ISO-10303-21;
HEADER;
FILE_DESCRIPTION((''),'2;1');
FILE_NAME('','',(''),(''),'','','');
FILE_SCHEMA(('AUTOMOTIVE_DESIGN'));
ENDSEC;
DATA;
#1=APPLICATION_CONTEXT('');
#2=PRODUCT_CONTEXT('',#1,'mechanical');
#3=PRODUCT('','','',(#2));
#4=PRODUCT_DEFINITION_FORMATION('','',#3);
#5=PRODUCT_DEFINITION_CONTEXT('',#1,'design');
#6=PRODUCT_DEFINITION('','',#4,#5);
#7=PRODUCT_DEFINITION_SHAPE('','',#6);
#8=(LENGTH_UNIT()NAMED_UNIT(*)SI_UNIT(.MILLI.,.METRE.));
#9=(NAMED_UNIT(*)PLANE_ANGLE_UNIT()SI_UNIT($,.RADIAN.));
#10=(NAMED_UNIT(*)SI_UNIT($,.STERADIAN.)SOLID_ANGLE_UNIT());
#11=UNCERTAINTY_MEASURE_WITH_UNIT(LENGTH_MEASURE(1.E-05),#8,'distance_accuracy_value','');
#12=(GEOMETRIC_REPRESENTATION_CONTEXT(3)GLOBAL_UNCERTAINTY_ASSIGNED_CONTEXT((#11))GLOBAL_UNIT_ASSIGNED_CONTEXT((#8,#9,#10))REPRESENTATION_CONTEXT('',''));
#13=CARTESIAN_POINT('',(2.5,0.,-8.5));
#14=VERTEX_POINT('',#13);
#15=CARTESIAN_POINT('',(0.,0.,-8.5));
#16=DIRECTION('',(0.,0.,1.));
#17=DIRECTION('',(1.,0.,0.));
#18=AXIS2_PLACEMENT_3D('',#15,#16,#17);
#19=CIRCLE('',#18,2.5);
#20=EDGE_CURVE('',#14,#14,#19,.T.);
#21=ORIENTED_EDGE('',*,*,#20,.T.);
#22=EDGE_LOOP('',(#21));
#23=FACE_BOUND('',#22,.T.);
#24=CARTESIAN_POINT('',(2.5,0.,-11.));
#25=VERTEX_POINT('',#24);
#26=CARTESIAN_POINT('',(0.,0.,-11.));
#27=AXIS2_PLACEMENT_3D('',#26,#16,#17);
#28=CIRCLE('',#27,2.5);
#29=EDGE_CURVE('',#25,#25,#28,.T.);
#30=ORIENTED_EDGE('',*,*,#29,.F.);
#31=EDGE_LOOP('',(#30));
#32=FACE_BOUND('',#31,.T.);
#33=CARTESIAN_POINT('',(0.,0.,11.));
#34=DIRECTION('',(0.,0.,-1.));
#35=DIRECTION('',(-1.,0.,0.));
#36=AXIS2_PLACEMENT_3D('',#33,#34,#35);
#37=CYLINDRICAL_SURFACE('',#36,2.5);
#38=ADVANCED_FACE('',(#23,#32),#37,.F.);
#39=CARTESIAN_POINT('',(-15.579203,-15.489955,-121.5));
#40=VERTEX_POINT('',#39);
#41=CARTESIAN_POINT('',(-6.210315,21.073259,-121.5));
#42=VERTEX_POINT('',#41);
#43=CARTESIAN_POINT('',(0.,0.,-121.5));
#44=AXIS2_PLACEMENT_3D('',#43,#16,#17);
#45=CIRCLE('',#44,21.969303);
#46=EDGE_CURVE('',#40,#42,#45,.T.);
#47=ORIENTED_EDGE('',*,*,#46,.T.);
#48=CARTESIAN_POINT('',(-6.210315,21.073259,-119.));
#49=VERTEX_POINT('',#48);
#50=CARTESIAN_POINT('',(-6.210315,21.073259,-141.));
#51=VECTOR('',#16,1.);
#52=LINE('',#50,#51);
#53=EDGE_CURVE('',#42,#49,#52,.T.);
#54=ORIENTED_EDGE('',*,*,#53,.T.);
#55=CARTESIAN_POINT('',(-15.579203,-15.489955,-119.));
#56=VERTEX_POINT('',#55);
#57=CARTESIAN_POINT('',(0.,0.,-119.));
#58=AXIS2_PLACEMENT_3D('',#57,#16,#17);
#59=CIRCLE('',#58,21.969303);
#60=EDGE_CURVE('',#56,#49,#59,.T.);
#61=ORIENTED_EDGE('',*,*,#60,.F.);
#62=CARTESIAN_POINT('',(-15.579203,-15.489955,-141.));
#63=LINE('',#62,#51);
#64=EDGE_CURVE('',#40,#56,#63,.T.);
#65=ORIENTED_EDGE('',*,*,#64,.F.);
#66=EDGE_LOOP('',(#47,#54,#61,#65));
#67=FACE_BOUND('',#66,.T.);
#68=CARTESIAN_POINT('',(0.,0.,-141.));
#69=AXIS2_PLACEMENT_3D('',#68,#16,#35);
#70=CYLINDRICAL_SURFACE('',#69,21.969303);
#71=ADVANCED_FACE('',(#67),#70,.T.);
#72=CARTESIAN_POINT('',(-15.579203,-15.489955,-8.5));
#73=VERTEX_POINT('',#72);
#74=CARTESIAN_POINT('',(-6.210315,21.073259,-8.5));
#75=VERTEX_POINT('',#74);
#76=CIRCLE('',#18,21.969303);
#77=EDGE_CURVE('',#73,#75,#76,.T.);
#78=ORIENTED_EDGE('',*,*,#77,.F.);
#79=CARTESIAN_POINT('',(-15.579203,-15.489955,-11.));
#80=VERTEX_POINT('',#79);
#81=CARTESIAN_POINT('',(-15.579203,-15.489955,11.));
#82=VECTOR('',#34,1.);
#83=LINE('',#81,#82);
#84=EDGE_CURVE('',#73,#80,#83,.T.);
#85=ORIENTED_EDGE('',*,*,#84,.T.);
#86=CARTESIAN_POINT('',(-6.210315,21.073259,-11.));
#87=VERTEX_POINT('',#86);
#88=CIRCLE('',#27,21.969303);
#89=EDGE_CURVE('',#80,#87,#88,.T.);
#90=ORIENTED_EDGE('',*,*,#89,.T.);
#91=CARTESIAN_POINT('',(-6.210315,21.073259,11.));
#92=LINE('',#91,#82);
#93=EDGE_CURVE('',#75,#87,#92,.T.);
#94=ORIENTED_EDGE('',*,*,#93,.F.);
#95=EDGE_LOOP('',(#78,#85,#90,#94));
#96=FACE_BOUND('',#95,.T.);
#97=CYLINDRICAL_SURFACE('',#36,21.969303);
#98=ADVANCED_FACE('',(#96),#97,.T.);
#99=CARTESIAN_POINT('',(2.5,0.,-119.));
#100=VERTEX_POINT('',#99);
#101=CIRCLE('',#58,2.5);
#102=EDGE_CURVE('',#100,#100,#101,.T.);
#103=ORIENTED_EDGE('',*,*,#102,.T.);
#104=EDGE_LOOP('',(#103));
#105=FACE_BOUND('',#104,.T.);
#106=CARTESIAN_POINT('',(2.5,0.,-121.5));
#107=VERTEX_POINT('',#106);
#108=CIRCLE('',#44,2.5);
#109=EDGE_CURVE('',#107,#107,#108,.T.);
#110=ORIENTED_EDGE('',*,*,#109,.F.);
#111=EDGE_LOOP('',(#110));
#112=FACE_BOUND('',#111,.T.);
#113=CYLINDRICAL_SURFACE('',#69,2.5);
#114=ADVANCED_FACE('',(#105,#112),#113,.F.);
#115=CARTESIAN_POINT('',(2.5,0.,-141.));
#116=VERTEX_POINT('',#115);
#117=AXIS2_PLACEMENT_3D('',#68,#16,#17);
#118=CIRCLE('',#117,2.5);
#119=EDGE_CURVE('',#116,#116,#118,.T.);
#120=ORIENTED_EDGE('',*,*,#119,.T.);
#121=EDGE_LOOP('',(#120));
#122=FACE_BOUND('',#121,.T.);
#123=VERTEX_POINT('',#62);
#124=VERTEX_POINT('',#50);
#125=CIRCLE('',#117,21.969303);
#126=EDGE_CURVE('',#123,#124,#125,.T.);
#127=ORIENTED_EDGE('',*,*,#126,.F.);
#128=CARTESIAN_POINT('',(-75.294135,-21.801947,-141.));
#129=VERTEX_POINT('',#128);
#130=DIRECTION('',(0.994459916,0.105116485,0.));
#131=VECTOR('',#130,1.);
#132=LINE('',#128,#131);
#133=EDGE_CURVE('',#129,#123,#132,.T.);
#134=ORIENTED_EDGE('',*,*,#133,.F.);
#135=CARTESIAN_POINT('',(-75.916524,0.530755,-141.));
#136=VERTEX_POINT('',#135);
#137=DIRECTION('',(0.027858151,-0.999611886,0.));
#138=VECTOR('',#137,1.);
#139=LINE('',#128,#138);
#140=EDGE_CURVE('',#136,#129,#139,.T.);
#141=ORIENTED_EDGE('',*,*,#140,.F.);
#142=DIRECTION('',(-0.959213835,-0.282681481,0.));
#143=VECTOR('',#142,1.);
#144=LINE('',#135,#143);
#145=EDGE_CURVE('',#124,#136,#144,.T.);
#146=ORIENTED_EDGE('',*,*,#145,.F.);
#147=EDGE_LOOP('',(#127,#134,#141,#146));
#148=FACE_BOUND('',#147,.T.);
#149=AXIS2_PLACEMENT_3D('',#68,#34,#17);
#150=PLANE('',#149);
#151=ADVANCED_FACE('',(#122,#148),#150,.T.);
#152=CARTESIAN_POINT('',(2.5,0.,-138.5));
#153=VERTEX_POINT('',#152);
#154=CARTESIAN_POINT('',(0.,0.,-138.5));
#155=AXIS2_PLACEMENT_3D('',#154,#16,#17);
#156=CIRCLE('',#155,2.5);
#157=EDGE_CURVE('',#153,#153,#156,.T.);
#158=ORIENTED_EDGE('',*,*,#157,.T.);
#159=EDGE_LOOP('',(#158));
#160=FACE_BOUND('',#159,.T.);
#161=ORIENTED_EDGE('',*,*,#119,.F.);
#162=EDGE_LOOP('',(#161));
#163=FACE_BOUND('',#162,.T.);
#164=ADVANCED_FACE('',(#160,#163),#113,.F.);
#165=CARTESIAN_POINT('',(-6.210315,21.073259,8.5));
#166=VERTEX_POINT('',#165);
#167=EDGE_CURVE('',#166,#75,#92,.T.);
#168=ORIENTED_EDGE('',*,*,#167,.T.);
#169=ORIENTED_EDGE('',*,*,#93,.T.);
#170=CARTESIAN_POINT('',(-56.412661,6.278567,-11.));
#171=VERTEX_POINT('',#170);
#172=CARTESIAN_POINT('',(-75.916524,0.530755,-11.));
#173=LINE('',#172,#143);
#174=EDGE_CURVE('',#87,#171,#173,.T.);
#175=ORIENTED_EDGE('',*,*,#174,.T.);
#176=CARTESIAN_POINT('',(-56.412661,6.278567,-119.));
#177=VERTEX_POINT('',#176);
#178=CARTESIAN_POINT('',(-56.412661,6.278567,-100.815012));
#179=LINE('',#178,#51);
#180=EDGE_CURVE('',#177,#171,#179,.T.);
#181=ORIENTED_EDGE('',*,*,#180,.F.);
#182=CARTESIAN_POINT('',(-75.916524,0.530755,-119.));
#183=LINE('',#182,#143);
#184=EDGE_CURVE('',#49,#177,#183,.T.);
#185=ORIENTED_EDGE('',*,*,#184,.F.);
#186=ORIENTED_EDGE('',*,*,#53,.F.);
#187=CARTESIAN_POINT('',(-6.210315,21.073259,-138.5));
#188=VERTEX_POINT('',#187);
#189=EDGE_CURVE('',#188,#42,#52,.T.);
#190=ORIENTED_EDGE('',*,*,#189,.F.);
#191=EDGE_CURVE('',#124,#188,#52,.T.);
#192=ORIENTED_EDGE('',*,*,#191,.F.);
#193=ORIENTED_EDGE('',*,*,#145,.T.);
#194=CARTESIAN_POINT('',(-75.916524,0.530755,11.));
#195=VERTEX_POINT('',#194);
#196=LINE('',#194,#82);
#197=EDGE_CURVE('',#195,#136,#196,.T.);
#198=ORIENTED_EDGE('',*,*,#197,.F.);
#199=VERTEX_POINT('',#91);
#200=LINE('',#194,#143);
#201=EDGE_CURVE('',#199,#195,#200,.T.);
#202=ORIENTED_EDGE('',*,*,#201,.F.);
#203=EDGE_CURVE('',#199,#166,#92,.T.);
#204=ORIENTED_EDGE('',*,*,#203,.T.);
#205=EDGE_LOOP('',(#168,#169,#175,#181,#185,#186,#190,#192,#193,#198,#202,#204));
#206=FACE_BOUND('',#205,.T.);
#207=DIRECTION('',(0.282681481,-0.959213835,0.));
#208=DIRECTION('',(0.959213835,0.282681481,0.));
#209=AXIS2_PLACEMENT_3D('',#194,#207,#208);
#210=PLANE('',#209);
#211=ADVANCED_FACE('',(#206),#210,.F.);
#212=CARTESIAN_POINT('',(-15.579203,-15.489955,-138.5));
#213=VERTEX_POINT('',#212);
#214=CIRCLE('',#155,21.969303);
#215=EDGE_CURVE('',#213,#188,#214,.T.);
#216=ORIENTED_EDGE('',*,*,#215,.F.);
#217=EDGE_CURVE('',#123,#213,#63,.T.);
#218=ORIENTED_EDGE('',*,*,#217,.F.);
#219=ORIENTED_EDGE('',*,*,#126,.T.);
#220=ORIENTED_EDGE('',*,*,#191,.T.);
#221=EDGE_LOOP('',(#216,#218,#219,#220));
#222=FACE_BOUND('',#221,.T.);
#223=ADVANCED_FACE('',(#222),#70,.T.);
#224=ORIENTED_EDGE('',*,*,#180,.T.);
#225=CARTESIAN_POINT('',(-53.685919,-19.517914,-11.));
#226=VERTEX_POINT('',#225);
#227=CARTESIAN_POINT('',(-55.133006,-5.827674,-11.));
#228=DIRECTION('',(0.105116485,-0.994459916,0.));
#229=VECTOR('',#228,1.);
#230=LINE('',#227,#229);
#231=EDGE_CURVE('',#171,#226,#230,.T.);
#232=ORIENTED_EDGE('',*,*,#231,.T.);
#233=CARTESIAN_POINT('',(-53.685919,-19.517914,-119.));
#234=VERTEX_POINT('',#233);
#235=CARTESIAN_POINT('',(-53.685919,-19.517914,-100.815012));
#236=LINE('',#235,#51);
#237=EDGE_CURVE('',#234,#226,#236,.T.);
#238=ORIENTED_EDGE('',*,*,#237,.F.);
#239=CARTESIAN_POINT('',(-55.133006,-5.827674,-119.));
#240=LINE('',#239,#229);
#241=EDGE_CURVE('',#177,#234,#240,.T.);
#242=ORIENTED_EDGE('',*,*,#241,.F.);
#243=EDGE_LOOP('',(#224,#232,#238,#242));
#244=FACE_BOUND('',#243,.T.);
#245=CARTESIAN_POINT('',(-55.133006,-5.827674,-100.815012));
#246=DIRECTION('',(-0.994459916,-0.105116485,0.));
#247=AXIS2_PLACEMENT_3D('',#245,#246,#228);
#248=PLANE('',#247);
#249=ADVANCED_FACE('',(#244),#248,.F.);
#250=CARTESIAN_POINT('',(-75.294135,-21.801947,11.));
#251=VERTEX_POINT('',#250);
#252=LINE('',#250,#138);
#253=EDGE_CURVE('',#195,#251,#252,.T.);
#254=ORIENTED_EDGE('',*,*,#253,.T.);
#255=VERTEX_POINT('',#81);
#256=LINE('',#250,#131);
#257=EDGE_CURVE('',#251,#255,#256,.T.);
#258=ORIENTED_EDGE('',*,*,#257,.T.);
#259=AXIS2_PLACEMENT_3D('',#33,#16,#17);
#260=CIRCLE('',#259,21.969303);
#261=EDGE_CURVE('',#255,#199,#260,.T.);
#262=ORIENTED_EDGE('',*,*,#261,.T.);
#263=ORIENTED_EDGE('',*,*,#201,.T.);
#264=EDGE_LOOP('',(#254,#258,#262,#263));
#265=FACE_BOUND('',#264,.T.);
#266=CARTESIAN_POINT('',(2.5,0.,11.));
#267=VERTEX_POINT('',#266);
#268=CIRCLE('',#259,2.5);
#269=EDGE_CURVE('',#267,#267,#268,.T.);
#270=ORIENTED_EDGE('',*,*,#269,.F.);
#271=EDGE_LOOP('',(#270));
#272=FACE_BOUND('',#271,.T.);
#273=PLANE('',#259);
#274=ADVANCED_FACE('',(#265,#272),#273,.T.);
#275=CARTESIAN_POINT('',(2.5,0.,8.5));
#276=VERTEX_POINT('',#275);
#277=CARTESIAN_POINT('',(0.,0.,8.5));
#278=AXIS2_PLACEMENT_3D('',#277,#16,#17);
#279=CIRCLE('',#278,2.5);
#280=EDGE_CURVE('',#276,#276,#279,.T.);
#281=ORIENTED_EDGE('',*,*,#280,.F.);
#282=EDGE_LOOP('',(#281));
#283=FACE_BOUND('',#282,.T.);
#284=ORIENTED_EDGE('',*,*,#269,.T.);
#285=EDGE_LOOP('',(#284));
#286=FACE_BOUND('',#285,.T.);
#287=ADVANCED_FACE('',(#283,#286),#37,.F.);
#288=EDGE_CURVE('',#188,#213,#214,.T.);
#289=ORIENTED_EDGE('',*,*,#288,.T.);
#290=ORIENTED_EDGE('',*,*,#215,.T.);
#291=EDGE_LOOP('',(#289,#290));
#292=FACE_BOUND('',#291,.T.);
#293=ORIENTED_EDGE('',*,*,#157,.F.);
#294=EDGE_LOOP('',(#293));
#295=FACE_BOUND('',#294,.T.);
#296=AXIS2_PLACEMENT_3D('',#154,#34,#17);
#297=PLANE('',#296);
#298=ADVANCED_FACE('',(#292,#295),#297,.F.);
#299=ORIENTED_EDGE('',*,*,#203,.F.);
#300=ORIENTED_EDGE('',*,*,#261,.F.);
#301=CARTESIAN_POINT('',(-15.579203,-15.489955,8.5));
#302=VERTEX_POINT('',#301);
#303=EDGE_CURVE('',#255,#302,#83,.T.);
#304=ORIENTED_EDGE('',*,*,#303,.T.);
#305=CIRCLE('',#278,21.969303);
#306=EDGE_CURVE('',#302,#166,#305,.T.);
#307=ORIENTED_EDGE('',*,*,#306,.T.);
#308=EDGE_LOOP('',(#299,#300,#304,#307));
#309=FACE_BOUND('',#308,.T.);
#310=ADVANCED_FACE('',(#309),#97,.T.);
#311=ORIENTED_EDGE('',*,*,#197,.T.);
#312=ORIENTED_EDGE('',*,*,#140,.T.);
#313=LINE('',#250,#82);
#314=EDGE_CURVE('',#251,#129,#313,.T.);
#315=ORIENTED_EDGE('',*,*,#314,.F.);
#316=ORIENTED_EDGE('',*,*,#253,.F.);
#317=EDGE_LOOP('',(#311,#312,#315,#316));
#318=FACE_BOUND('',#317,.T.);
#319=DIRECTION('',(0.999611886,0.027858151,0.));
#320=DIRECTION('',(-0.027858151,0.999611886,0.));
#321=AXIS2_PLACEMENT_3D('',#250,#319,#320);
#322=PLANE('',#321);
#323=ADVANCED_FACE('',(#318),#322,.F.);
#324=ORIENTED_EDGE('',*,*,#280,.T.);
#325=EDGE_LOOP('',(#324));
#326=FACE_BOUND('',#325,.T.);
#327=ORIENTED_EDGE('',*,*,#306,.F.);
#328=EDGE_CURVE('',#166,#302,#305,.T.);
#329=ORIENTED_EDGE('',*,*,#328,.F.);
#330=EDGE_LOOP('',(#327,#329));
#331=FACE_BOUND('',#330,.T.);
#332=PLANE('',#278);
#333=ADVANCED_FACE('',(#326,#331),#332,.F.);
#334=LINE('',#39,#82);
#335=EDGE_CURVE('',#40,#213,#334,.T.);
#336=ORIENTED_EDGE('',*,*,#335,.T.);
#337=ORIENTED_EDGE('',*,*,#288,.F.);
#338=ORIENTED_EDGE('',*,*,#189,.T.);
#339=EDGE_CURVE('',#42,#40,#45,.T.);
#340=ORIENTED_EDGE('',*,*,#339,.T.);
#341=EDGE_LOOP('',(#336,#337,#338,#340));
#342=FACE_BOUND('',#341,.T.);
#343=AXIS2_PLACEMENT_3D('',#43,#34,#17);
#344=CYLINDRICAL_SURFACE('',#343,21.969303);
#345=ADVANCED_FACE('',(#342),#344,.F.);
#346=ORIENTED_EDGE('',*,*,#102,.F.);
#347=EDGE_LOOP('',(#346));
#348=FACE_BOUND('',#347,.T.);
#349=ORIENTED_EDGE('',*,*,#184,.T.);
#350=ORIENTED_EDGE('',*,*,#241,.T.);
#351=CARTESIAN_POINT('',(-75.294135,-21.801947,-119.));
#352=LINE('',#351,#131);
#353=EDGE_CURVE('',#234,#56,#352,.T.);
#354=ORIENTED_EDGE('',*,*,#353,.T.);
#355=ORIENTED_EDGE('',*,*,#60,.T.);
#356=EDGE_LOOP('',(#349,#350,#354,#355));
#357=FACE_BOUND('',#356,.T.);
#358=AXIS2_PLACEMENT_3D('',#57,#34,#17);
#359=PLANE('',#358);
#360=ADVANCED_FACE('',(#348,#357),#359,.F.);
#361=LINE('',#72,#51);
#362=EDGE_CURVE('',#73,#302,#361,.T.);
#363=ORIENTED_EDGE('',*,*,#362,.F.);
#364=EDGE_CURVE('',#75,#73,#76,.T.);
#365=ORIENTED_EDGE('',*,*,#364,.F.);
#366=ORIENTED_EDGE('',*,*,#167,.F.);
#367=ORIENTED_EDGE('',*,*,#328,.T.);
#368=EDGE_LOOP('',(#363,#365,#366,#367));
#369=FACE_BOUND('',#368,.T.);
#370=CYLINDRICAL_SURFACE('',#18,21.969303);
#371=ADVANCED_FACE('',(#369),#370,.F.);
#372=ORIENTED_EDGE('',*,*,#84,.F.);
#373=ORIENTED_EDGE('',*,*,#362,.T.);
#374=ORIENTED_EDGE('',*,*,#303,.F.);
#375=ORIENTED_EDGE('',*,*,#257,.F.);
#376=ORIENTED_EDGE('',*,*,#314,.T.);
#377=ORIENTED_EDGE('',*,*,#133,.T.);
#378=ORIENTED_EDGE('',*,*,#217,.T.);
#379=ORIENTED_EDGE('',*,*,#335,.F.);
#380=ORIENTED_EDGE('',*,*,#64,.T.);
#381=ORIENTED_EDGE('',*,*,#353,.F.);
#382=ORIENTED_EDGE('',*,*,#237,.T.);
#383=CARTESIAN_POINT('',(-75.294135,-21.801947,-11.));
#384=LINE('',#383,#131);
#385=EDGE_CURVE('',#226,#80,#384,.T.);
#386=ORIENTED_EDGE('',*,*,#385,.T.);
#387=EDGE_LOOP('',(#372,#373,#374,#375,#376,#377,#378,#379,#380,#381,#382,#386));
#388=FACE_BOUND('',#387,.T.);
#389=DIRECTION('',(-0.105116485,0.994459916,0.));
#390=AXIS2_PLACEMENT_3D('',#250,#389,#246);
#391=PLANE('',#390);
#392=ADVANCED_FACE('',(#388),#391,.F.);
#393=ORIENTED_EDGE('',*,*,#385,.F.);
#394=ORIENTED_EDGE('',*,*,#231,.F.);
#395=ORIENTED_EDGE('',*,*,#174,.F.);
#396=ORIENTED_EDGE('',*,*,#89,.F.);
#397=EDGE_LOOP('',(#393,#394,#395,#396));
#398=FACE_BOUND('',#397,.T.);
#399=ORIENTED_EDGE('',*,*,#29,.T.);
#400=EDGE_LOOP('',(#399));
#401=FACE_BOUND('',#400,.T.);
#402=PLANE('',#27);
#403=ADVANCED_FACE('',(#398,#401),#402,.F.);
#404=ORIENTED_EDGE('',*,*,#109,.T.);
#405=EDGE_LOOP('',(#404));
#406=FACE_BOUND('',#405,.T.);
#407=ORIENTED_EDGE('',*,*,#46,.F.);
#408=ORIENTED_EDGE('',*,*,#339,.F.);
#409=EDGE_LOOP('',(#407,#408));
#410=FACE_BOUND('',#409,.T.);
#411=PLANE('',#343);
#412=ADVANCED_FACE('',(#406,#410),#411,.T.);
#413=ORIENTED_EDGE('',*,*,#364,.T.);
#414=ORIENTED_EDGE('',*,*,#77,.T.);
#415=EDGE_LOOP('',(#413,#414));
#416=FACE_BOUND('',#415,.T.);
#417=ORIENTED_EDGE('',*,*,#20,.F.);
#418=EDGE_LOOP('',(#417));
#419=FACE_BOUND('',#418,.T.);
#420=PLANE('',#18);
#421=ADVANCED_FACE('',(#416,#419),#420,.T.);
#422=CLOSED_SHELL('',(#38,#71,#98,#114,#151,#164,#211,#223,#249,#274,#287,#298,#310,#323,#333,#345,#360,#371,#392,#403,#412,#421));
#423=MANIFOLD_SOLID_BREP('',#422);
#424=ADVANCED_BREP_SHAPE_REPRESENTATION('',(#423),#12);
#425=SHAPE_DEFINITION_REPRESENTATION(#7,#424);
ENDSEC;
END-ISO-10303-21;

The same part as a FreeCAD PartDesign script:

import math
import FreeCAD as App
import Part
import Sketcher
from FreeCAD import Vector

doc = App.newDocument("Part")
params = doc.addObject("Spreadsheet::Sheet", "Params")
for row, (alias, value) in enumerate([
    ("sketch1_diameter", "5 mm"),
    ("pad1_length", "22 mm"),
    ("pocket1_length", "17 mm"),
    ("pad2_length", "54 mm"),
], start=1):
    params.set(f"A{row}", alias)
    params.set(f"B{row}", "=" + value)
    params.setAlias(f"B{row}", alias)

body = doc.addObject("PartDesign::Body", "Body")

sketch1 = body.newObject("Sketcher::SketchObject", "Sketch")
sketch1.AttachmentSupport = (doc.getObject("XY_Plane"), [""])
sketch1.MapMode = "FlatFace"
sketch1.addGeometry([
    Part.LineSegment(Vector(-75.9, 0.5, 0), Vector(-75.3, -21.8, 0)),
    Part.LineSegment(Vector(-75.3, -21.8, 0), Vector(-15.6, -15.5, 0)),
    Part.ArcOfCircle(Part.Circle(Vector(0, 0, 0), Vector(0, 0, 1), 22), math.radians(-135), math.radians(106)),
    Part.LineSegment(Vector(-6.2, 21.1, 0), Vector(-75.9, 0.5, 0)),
    Part.Circle(Vector(0, 0, 0), Vector(0, 0, 1), 2.5),
], False)
sketch1.addConstraint([
    Sketcher.Constraint("Coincident", 0, 2, 1, 1),
    Sketcher.Constraint("Coincident", 1, 2, 2, 1),
    Sketcher.Constraint("Tangent", 2, 2, 3, 1),
    Sketcher.Constraint("Coincident", 3, 2, 0, 1),
    Sketcher.Constraint("Coincident", 2, 3, -1, 1),
    Sketcher.Constraint("Coincident", 4, 3, -1, 1),
    Sketcher.Constraint("Diameter", 4, 5.0),
    Sketcher.Constraint("Radius", 2, 21.969303),
    Sketcher.Constraint("Distance", 1, 60.0476),
    Sketcher.Constraint("DistanceY", -1, 1, 2, 2, 21.073259),
    Sketcher.Constraint("DistanceX", 0, 2, 1, 2, 59.714932),
    Sketcher.Constraint("DistanceX", 1, 2, 2, 2, 9.368888),
    Sketcher.Constraint("DistanceX", 3, 2, 0, 2, 0.622389),
])
sketch1.setExpression("Constraints[6]", "Params.sketch1_diameter")
pad1 = body.newObject("PartDesign::Pad", "Pad")
pad1.Profile = sketch1
pad1.setExpression("Length", "Params.pad1_length")
pad1.Midplane = True

sketch2 = body.newObject("Sketcher::SketchObject", "Sketch001")
sketch2.AttachmentSupport = (doc.getObject("XY_Plane"), [""])
sketch2.MapMode = "FlatFace"
sketch2.addGeometry(Part.Circle(Vector(0, 0, 0), Vector(0, 0, 1), 22), False)
sketch2.addConstraint([
    Sketcher.Constraint("Coincident", 0, 3, -1, 1),
    Sketcher.Constraint("Diameter", 0, 43.938606),
])
pocket1 = body.newObject("PartDesign::Pocket", "Pocket")
pocket1.Profile = sketch2
pocket1.setExpression("Length", "Params.pocket1_length")
pocket1.Midplane = True

sketch3 = body.newObject("Sketcher::SketchObject", "Sketch002")
sketch3.AttachmentSupport = (doc.getObject("XY_Plane"), [""])
sketch3.MapMode = "FlatFace"
sketch3.AttachmentOffset = App.Placement(Vector(0, 0, -11), App.Rotation())
sketch3.addGeometry([
    Part.LineSegment(Vector(-75.29, -21.8, 0), Vector(-75.92, 0.53, 0)),
    Part.LineSegment(Vector(-75.92, 0.53, 0), Vector(-75.61, 0.62, 0)),
    Part.LineSegment(Vector(-75.61, 0.62, 0), Vector(-56.41, 6.28, 0)),
    Part.LineSegment(Vector(-56.41, 6.28, 0), Vector(-53.69, -19.52, 0)),
    Part.LineSegment(Vector(-53.69, -19.52, 0), Vector(-75.29, -21.8, 0)),
], False)
sketch3.addConstraint([
    Sketcher.Constraint("Coincident", 0, 2, 1, 1),
    Sketcher.Constraint("Coincident", 1, 2, 2, 1),
    Sketcher.Constraint("Coincident", 2, 2, 3, 1),
    Sketcher.Constraint("Coincident", 3, 2, 4, 1),
    Sketcher.Constraint("Coincident", 4, 2, 0, 1),
    Sketcher.Constraint("Parallel", 1, 2),
    Sketcher.Constraint("Perpendicular", 3, 4),
    Sketcher.Constraint("Distance", 2, 20.008749),
    Sketcher.Constraint("DistanceX", 1, 2, -1, 1, 75.60533),
    Sketcher.Constraint("DistanceX", 2, 2, -1, 1, 56.412661),
    Sketcher.Constraint("DistanceX", 3, 2, -1, 1, 53.685919),
    Sketcher.Constraint("DistanceY", 0, 2, 1, 2, 0.091709),
    Sketcher.Constraint("DistanceY", 3, 2, 2, 2, 25.796481),
    Sketcher.Constraint("DistanceX", 0, 2, 4, 2, 0.622389),
    Sketcher.Constraint("DistanceY", -1, 1, 0, 2, 0.530755),
])
pad2 = body.newObject("PartDesign::Pad", "Pad001")
pad2.Profile = sketch3
pad2.setExpression("Length", "Params.pad2_length")
pad2.Reversed = True
doc.recompute()

datumplane = body.newObject("PartDesign::Plane", "DatumPlane")
datumplane.AttachmentSupport = (doc.getObject("XY_Plane"), [""])
datumplane.MapMode = "FlatFace"
datumplane.AttachmentOffset = App.Placement(Vector(0, 0, -65), App.Rotation())
mirrored = body.newObject("PartDesign::Mirrored", "Mirrored")
mirrored.Originals = [pad1, pocket1, pad2]
mirrored.MirrorPlane = (datumplane, [""])
body.Tip = mirrored

doc.recompute()
